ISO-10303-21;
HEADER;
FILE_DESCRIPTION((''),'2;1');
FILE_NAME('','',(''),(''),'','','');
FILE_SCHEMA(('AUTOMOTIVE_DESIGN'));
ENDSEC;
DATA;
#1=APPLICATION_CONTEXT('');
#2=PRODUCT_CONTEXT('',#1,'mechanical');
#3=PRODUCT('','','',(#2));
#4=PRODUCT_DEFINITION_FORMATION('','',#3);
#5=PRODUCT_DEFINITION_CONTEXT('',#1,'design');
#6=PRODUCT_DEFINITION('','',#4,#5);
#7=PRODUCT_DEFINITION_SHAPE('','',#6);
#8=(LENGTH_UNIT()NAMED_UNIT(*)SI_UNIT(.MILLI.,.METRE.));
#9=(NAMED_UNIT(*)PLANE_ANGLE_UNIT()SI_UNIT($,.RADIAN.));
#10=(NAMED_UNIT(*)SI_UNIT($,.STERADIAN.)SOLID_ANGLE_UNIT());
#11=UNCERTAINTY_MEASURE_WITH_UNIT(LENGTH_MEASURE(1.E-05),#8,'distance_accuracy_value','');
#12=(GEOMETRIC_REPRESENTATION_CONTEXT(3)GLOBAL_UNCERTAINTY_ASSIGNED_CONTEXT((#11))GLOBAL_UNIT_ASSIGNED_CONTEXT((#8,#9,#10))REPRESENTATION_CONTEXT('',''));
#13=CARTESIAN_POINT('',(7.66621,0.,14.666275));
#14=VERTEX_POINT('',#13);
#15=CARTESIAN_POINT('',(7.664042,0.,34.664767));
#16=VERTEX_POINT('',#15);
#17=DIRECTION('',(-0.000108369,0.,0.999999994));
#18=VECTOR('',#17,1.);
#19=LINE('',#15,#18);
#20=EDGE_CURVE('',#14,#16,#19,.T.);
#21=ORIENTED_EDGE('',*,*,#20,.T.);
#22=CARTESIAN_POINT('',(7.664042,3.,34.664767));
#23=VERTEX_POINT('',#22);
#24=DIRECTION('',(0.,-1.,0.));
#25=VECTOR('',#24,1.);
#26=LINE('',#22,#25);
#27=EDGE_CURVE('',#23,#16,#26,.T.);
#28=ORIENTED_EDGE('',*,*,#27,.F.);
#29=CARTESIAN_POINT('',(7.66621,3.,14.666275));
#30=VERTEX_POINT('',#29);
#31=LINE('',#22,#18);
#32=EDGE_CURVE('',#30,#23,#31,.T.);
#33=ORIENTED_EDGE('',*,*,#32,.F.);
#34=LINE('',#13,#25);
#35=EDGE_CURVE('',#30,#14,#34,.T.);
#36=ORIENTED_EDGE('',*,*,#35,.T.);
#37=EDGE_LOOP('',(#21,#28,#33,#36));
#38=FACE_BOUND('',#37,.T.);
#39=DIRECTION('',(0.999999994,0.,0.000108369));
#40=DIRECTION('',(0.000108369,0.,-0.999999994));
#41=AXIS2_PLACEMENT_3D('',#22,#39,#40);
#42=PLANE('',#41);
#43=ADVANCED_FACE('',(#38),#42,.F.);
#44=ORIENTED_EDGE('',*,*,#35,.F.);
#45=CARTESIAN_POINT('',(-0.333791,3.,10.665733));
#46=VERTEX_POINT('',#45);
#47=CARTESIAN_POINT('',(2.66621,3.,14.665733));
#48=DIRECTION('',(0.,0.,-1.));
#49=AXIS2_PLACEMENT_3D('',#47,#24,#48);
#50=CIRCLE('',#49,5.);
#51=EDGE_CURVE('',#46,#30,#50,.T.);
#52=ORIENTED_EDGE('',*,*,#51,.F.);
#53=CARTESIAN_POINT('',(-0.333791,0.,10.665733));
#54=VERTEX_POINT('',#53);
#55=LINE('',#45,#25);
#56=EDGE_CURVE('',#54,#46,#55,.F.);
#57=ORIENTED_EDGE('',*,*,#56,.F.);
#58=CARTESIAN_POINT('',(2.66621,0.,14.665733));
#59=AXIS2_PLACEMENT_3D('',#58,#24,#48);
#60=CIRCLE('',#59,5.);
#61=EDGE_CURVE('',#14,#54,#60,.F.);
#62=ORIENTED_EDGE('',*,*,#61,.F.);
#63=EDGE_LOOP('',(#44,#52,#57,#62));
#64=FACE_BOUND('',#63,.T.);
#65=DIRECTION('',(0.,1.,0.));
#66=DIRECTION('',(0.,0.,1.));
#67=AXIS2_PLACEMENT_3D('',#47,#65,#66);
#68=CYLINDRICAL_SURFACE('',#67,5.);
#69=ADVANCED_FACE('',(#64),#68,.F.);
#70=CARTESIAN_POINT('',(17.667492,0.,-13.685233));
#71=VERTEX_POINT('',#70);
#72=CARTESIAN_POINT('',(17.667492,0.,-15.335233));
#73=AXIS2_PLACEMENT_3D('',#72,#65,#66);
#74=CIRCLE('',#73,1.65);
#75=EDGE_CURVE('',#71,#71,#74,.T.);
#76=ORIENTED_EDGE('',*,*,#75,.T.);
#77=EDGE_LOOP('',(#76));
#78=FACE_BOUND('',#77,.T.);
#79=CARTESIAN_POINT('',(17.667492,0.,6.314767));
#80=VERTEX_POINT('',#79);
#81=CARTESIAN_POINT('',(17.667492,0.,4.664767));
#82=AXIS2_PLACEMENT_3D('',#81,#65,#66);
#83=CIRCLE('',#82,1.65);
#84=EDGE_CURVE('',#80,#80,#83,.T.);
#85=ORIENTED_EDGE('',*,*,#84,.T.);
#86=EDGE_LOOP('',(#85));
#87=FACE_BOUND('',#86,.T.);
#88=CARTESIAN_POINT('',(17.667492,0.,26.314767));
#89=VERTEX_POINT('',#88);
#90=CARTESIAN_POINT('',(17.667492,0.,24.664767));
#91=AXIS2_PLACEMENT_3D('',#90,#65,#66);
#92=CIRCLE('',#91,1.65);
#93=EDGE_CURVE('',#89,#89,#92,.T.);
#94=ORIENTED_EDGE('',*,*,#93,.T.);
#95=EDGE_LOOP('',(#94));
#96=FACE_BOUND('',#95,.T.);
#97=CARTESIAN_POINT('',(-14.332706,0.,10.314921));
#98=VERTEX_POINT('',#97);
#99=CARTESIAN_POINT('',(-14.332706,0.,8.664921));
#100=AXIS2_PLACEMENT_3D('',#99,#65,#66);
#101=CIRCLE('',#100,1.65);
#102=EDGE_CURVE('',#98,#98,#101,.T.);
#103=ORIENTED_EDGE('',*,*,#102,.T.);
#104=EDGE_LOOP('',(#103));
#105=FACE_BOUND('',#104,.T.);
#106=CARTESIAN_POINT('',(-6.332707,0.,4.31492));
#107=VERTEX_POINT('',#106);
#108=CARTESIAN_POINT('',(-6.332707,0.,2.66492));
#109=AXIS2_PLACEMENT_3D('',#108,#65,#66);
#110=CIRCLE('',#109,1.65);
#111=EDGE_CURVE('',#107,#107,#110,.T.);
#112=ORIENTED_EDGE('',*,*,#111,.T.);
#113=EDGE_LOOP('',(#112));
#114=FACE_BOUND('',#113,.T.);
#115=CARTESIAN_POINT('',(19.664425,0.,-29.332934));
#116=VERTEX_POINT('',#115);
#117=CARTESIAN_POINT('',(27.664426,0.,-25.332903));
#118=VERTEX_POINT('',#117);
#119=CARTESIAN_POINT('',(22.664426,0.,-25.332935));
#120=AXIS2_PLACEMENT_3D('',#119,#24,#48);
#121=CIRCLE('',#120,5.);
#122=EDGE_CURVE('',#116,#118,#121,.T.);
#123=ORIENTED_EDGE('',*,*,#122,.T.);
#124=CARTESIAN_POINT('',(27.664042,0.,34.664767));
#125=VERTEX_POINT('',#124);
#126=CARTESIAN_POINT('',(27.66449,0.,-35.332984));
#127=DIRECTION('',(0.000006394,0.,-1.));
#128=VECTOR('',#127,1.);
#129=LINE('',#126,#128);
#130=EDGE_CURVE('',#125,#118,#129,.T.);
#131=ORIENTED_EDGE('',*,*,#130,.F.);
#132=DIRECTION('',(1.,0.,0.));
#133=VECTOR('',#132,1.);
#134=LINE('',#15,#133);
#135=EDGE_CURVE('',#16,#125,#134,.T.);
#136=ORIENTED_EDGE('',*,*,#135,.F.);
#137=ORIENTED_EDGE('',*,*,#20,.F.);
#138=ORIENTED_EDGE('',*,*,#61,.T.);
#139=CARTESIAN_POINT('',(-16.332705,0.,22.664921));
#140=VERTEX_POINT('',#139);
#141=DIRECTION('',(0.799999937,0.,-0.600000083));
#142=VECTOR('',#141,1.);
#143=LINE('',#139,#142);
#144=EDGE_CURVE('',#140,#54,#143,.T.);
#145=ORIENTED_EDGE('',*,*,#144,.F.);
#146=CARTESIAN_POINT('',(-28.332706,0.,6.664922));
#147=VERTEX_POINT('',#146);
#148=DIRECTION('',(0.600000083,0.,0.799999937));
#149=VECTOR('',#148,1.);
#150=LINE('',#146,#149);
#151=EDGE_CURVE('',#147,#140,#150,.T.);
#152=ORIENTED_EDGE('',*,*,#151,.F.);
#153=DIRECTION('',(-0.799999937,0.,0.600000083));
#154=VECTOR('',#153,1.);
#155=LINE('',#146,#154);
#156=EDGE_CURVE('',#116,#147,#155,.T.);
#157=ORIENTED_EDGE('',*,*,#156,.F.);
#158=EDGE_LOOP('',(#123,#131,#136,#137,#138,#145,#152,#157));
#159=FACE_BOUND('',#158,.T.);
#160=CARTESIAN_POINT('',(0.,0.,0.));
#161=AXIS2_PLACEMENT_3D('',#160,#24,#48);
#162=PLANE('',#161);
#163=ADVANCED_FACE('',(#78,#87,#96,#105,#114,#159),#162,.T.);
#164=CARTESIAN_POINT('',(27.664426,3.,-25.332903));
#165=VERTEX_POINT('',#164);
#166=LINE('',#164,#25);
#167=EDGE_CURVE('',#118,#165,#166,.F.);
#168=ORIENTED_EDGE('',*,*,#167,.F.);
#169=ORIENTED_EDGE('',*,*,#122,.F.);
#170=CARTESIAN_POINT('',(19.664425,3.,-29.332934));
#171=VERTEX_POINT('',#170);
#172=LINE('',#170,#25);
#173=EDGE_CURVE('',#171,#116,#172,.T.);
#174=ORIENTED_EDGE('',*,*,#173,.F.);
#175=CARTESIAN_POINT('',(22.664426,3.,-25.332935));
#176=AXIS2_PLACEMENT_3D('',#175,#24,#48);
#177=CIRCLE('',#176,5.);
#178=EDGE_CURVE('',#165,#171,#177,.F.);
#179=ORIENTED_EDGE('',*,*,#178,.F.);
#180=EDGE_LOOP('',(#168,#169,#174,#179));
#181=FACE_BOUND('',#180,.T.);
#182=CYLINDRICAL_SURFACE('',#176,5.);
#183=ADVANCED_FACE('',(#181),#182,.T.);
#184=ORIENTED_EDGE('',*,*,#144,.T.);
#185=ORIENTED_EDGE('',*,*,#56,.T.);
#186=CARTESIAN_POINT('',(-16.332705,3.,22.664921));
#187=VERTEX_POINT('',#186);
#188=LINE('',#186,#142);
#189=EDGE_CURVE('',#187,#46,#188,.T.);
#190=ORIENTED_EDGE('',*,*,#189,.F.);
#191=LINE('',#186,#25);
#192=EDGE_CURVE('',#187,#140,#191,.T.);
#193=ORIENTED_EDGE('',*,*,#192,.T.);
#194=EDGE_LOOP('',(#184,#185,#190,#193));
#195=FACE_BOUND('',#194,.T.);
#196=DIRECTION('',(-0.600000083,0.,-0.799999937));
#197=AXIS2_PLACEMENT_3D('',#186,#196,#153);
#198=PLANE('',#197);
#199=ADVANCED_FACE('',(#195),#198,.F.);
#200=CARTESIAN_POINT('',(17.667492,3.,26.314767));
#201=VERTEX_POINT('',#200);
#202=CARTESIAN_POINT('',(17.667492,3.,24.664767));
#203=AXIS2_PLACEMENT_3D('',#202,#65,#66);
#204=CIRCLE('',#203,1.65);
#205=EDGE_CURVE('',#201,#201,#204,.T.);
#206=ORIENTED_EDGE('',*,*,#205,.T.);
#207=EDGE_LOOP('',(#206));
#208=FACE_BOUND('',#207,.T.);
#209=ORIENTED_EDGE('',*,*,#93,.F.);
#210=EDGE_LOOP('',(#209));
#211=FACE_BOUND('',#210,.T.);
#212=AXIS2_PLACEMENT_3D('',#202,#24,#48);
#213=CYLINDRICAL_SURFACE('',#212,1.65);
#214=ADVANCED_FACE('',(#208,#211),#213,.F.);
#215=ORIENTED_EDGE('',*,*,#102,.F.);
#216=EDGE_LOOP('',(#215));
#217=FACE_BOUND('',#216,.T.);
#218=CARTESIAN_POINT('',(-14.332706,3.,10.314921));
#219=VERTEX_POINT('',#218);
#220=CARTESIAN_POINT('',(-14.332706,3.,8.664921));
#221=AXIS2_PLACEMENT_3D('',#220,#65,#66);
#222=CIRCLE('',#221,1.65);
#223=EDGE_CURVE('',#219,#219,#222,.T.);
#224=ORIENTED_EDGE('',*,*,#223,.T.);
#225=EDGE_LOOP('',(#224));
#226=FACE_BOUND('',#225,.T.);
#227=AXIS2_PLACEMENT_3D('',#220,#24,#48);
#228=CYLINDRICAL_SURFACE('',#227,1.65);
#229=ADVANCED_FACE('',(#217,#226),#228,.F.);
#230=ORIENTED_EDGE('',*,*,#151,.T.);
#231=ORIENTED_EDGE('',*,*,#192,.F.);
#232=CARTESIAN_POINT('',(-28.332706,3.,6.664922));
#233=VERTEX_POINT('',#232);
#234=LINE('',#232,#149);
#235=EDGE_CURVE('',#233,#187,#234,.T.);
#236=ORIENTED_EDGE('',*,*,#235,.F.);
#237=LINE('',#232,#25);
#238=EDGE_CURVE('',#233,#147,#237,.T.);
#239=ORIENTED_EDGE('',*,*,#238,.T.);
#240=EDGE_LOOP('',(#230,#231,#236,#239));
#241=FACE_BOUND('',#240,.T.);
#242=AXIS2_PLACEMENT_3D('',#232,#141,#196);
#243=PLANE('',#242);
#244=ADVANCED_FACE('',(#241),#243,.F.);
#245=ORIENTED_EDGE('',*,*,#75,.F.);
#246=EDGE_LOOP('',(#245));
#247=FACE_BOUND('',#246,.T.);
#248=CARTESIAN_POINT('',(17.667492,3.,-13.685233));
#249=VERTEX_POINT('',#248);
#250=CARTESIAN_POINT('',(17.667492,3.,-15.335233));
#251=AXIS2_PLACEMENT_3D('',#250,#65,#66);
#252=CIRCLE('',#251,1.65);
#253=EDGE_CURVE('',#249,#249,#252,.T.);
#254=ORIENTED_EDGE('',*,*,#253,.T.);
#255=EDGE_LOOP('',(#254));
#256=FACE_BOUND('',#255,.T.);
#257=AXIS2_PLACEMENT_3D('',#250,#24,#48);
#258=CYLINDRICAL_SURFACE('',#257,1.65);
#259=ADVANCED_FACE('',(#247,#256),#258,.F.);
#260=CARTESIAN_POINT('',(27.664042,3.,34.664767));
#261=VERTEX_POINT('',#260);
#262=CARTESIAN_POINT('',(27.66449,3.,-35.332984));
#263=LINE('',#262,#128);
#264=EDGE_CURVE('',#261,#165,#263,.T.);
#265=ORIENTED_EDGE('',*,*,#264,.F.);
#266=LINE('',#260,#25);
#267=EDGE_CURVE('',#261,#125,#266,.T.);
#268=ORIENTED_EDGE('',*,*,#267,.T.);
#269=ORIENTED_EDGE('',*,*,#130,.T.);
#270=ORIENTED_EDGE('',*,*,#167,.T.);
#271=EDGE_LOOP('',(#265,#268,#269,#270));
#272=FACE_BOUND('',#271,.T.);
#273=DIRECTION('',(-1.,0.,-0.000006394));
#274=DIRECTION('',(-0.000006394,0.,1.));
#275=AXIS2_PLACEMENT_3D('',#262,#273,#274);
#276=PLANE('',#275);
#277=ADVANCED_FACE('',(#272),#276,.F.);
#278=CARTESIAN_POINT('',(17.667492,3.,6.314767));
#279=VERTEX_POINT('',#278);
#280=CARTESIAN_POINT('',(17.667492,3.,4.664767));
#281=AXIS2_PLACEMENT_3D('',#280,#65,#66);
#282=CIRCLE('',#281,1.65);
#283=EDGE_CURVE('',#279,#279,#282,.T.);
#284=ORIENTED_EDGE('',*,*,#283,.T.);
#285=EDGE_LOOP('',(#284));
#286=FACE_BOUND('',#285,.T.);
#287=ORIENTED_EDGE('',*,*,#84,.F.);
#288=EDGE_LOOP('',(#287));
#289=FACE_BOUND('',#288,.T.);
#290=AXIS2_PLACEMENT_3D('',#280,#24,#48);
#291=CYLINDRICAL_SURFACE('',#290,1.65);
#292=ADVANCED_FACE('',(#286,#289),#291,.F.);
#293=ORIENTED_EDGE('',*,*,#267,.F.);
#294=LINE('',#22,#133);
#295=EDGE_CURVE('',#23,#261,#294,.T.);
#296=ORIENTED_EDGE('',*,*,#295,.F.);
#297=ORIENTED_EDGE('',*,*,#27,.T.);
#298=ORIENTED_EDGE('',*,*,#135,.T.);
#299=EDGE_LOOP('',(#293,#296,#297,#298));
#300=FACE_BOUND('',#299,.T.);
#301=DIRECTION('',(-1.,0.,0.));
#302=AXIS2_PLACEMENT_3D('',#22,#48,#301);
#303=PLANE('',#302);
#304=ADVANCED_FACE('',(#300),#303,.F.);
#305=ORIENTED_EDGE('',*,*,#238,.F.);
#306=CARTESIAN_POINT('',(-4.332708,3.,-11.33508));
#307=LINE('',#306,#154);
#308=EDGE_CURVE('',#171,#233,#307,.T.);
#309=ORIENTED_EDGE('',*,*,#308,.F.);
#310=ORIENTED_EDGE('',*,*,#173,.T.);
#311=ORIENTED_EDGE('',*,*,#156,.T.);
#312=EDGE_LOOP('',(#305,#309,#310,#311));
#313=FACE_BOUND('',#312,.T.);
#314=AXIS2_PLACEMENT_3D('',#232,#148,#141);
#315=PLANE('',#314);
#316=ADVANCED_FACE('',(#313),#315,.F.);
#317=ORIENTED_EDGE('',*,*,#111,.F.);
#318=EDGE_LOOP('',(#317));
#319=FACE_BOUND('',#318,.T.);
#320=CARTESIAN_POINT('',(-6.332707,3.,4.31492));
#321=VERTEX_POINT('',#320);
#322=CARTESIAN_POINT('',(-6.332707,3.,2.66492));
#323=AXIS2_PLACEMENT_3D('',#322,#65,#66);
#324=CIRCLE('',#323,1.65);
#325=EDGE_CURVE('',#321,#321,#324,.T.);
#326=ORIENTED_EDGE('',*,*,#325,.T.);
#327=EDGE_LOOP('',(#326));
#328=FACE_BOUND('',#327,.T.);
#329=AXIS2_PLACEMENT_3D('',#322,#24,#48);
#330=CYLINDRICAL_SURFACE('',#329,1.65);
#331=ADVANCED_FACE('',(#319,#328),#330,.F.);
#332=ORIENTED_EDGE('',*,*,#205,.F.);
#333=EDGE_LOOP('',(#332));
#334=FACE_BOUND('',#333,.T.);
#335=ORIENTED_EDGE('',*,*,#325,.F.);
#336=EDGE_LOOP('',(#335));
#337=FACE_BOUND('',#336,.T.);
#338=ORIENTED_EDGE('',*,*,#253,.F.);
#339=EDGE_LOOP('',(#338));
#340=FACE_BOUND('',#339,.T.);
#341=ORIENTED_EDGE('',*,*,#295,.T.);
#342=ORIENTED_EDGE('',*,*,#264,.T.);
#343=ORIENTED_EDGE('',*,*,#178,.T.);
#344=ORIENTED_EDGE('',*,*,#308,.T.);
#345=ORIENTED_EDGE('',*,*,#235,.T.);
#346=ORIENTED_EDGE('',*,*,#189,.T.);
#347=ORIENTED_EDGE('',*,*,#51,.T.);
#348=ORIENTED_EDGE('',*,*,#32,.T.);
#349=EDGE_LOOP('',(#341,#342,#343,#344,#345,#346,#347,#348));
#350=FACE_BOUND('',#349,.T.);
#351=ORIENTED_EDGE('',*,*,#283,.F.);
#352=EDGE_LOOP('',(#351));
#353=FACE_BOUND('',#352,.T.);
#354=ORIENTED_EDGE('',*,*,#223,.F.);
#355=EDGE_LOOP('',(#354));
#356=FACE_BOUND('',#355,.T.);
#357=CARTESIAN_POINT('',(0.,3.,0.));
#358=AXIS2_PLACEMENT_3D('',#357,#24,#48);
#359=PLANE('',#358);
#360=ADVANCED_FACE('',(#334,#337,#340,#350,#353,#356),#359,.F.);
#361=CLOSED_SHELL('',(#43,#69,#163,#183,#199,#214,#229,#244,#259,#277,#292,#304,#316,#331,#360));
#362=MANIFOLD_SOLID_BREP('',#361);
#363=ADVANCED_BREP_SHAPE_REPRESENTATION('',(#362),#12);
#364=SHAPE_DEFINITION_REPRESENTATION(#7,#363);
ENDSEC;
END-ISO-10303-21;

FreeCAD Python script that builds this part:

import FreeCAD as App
import Part
import Sketcher


def edges_at(feature, points):
    """Names of the edges that pass closest to the given points."""
    edges = feature.Shape.Edges
    near = lambda p: min(range(len(edges)), key=lambda i: edges[i].distToShape(Part.Vertex(*p))[0])
    return sorted({f"Edge{near(p) + 1}" for p in points})


def add_polygon(sketch, points):
    """Adds a closed chain of lines whose ends are joined by coincident constraints."""
    first, n = sketch.GeometryCount, len(points)
    for a, b in zip(points, points[1:] + points[:1]):
        sketch.addGeometry(Part.LineSegment(App.Vector(*a, 0), App.Vector(*b, 0)), False)
    for i in range(n):
        sketch.addConstraint(Sketcher.Constraint("Coincident", first + i, 2, first + (i + 1) % n, 1))

doc = App.newDocument("Part")
params = doc.addObject("Spreadsheet::Sheet", "Params")
for row, (alias, value) in enumerate([
    ("sketch1_diameter", "3.3 mm"),
    ("sketch1_width", "20 mm"),
    ("sketch1_length", "20 mm"),
    ("sketch1_length2", "30 mm"),
    ("pad1_length", "3 mm"),
    ("fillet_radius", "5 mm"),
    ("fillet2_radius", "5 mm"),
], start=1):
    params.set(f"A{row}", alias)
    params.set(f"B{row}", "=" + value)
    params.setAlias(f"B{row}", alias)

body = doc.addObject("PartDesign::Body", "Body")

sketch1 = body.newObject("Sketcher::SketchObject", "Sketch")
sketch1.AttachmentSupport = (doc.getObject("XZ_Plane"), [""])
sketch1.MapMode = "FlatFace"
add_polygon(sketch1, [(-28.332706, 6.664922), (-16.332705, 22.664921), (7.667293, 4.664919), (7.664042, 34.664767), (27.664042, 34.664767), (27.66449, -35.332984), (-4.332708, -11.33508)])
sketch1.addGeometry(Part.Circle(App.Vector(-14.332706, 8.664921, 0), App.Vector(0, 0, 1), 1.65), False)
sketch1.addGeometry(Part.Circle(App.Vector(17.667492, 24.664767, 0), App.Vector(0, 0, 1), 1.65), False)
sketch1.addGeometry(Part.Circle(App.Vector(-6.332707, 2.66492, 0), App.Vector(0, 0, 1), 1.65), False)
sketch1.addGeometry(Part.Circle(App.Vector(17.667492, 4.664767, 0), App.Vector(0, 0, 1), 1.65), False)
sketch1.addGeometry(Part.Circle(App.Vector(17.667492, -15.335233, 0), App.Vector(0, 0, 1), 1.65), False)
sketch1.addConstraint([
    Sketcher.Constraint("Horizontal", 3),
    Sketcher.Constraint("Equal", 7, 8),
    Sketcher.Constraint("Equal", 8, 9),
    Sketcher.Constraint("Equal", 9, 10),
    Sketcher.Constraint("Equal", 10, 11),
    Sketcher.Constraint("Perpendicular", 0, 1),
    Sketcher.Constraint("Parallel", 1, 5),
    Sketcher.Constraint("Parallel", 5, 6),
    Sketcher.Constraint("Vertical", 8, 3, 10, 3),
    Sketcher.Constraint("Vertical", 10, 3, 11, 3),
    Sketcher.Constraint("Equal", 1, 6),
    Sketcher.Constraint("Diameter", 7, 3.3),
    Sketcher.Constraint("DistanceX", 3, 1, 3, 2, 20.0),
    Sketcher.Constraint("Distance", 0, 20.0),
    Sketcher.Constraint("Distance", 1, 30.0),
    Sketcher.Constraint("DistanceX", 7, 3, 9, 3, 7.999999),
    Sketcher.Constraint("DistanceY", 9, 3, 7, 3, 6.000001),
    Sketcher.Constraint("DistanceY", 10, 3, 8, 3, 20.0),
    Sketcher.Constraint("DistanceY", 11, 3, 10, 3, 20.0),
    Sketcher.Constraint("DistanceX", 0, 2, 7, 3, 1.999999),
    Sketcher.Constraint("DistanceY", 7, 3, 0, 2, 14.0),
    Sketcher.Constraint("DistanceX", 9, 3, 1, 2, 14.0),
    Sketcher.Constraint("DistanceY", 8, 3, 2, 2, 10.0),
    Sketcher.Constraint("DistanceX", 11, 3, 4, 2, 9.996998),
    Sketcher.Constraint("Distance", 5, 39.996501),
    Sketcher.Constraint("Distance", 2, 29.999849),
    Sketcher.Constraint("DistanceY", -1, 1, 7, 3, 8.664921),
    Sketcher.Constraint("DistanceX", -1, 1, 8, 3, 17.667492),
    Sketcher.Constraint("DistanceX", 2, 2, 8, 3, 10.003449),
])
sketch1.setExpression("Constraints[18]", "Params.sketch1_diameter")
sketch1.setExpression("Constraints[19]", "Params.sketch1_width")
sketch1.setExpression("Constraints[20]", "Params.sketch1_length")
sketch1.setExpression("Constraints[21]", "Params.sketch1_length2")
pad1 = body.newObject("PartDesign::Pad", "Pad")
pad1.Profile = sketch1
pad1.setExpression("Length", "Params.pad1_length")
pad1.Reversed = True
doc.recompute()

fillet = body.newObject("PartDesign::Fillet", "Fillet")
fillet.Base = (pad1, edges_at(pad1, [(7.667, 1.5, 4.665)]))
fillet.setExpression("Radius", "Params.fillet_radius")
doc.recompute()

fillet2 = body.newObject("PartDesign::Fillet", "Fillet001")
fillet2.Base = (fillet, edges_at(fillet, [(27.664, 1.5, -35.333)]))
fillet2.setExpression("Radius", "Params.fillet2_radius")

doc.recompute()
